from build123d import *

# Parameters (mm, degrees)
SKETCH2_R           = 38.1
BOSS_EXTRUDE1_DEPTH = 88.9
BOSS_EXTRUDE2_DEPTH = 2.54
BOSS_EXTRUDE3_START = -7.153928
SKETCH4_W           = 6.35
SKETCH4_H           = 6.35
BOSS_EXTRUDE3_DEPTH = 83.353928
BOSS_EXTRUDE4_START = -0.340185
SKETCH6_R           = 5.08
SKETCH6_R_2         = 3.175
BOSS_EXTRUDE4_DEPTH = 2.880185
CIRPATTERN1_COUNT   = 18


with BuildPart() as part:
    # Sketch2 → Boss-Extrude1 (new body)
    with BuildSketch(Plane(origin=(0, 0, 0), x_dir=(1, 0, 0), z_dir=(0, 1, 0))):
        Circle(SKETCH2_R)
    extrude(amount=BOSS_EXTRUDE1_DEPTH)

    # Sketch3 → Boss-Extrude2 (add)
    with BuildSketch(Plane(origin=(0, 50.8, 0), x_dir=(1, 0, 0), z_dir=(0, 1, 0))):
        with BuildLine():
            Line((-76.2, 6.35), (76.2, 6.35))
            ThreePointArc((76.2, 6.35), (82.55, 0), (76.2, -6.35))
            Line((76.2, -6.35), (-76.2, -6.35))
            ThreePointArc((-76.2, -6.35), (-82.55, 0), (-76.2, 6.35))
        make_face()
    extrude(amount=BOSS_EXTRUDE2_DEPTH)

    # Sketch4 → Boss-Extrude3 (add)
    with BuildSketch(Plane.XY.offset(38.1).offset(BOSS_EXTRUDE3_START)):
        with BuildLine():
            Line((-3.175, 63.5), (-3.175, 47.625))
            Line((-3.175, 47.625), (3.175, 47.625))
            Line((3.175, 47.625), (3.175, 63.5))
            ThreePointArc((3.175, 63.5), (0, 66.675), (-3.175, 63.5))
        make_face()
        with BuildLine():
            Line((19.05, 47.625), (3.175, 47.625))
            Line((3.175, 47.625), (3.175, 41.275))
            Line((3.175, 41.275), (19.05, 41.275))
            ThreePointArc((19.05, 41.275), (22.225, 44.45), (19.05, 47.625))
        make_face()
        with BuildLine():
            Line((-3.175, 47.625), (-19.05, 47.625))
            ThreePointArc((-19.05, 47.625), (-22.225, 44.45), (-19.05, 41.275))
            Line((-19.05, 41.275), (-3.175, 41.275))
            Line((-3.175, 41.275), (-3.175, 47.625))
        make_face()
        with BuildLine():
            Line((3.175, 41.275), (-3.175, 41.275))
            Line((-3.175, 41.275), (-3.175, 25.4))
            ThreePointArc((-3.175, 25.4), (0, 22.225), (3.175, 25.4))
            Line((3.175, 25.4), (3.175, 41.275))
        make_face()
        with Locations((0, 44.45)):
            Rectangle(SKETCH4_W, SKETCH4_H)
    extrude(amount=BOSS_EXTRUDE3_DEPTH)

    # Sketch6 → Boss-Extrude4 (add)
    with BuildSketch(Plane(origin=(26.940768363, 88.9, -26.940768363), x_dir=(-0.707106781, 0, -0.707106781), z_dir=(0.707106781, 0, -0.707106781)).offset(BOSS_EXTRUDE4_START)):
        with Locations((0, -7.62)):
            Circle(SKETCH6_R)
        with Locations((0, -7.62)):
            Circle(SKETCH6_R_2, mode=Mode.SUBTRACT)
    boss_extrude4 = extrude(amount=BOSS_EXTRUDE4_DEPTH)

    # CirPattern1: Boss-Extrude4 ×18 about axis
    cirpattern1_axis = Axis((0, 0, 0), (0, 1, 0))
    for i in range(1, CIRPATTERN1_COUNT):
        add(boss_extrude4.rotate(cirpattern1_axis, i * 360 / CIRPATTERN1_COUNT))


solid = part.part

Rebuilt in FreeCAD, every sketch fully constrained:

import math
import FreeCAD as App
import Part
import Sketcher
from FreeCAD import Vector
Q = App.Units.Quantity

doc = App.newDocument("Part")
body = doc.addObject("PartDesign::Body", "Body")

# Sketch on XZ plane
sketch1 = body.newObject("Sketcher::SketchObject", "Sketch")
sketch1.AttachmentSupport = (doc.getObject("XZ_Plane"), [""])
sketch1.MapMode = "FlatFace"
sketch1.addGeometry(Part.Circle(Vector(0, 0, 0), Vector(0, 0, 1), 38.1), False)
sketch1.addConstraint([
    Sketcher.Constraint("Coincident", 0, 3, -1, 1),
    Sketcher.Constraint("Diameter", 0, Q("3 in")),
])
pad1 = body.newObject("PartDesign::Pad", "Pad")
pad1.Profile = sketch1
pad1.Length = Q("3.5 in")
pad1.Reversed = True

# Sketch on XZ plane
sketch2 = body.newObject("Sketcher::SketchObject", "Sketch001")
sketch2.AttachmentSupport = (doc.getObject("XZ_Plane"), [""])
sketch2.MapMode = "FlatFace"
sketch2.AttachmentOffset = App.Placement(Vector(0, 0, -2 * 25.4), App.Rotation())
sketch2.addGeometry([
    Part.LineSegment(Vector(76.2, -6.35, 0), Vector(-76.2, -6.35, 0)),
    Part.ArcOfCircle(Part.Circle(Vector(-76.2, 0, 0), Vector(0, 0, 1), 6.35), math.radians(90), math.radians(270)),
    Part.LineSegment(Vector(-76.2, 6.35, 0), Vector(76.2, 6.35, 0)),
    Part.ArcOfCircle(Part.Circle(Vector(76.2, 0, 0), Vector(0, 0, 1), 6.35), math.radians(-90), math.radians(90)),
], False)
sketch2.addConstraint([
    Sketcher.Constraint("Tangent", 0, 2, 1, 2),
    Sketcher.Constraint("Tangent", 1, 1, 2, 1),
    Sketcher.Constraint("Tangent", 2, 2, 3, 2),
    Sketcher.Constraint("Tangent", 3, 1, 0, 1),
    Sketcher.Constraint("Horizontal", 0),
    Sketcher.Constraint("Horizontal", 2),
    Sketcher.Constraint("Symmetric", 1, 3, 3, 3, -1, 1),
    Sketcher.Constraint("DistanceX", 0, 2, 0, 1, Q("6 in")),
    Sketcher.Constraint("Radius", 1, Q("0.25 in")),
])
pad2 = body.newObject("PartDesign::Pad", "Pad001")
pad2.Profile = sketch2
pad2.Length = Q("0.1 in")
pad2.Reversed = True

# Sketch on XY plane
sketch3 = body.newObject("Sketcher::SketchObject", "Sketch002")
sketch3.AttachmentSupport = (doc.getObject("XY_Plane"), [""])
sketch3.MapMode = "FlatFace"
sketch3.AttachmentOffset = App.Placement(Vector(0, 0, 30.946072), App.Rotation())
sketch3.addGeometry([
    Part.LineSegment(Vector(-3.175, 63.5, 0), Vector(-3.175, 47.625, 0)),  # 0
    Part.LineSegment(Vector(-3.175, 47.625, 0), Vector(-19.05, 47.625, 0)),  # 1
    Part.ArcOfCircle(Part.Circle(Vector(-19.05, 44.45, 0), Vector(0, 0, 1), 3.175), math.radians(90), math.radians(270)),  # 2
    Part.LineSegment(Vector(-19.05, 41.275, 0), Vector(-3.175, 41.275, 0)),  # 3
    Part.LineSegment(Vector(-3.175, 41.275, 0), Vector(-3.175, 25.4, 0)),  # 4
    Part.ArcOfCircle(Part.Circle(Vector(0, 25.4, 0), Vector(0, 0, 1), 3.175), math.radians(180), math.radians(360)),  # 5
    Part.LineSegment(Vector(3.175, 25.4, 0), Vector(3.175, 41.275, 0)),  # 6
    Part.LineSegment(Vector(3.175, 41.275, 0), Vector(19.05, 41.275, 0)),  # 7
    Part.ArcOfCircle(Part.Circle(Vector(19.05, 44.45, 0), Vector(0, 0, 1), 3.175), math.radians(-90), math.radians(90)),  # 8
    Part.LineSegment(Vector(19.05, 47.625, 0), Vector(3.175, 47.625, 0)),  # 9
    Part.LineSegment(Vector(3.175, 47.625, 0), Vector(3.175, 63.5, 0)),  # 10
    Part.ArcOfCircle(Part.Circle(Vector(0, 63.5, 0), Vector(0, 0, 1), 3.175), math.radians(0), math.radians(180)),  # 11
], False)
sketch3.addConstraint([
    Sketcher.Constraint("Coincident", 0, 2, 1, 1),
    Sketcher.Constraint("Tangent", 1, 2, 2, 1),
    Sketcher.Constraint("Tangent", 2, 2, 3, 1),
    Sketcher.Constraint("Coincident", 3, 2, 4, 1),
    Sketcher.Constraint("Tangent", 4, 2, 5, 1),
    Sketcher.Constraint("Tangent", 5, 2, 6, 1),
    Sketcher.Constraint("Coincident", 6, 2, 7, 1),
    Sketcher.Constraint("Tangent", 7, 2, 8, 1),
    Sketcher.Constraint("Tangent", 8, 2, 9, 1),
    Sketcher.Constraint("Coincident", 9, 2, 10, 1),
    Sketcher.Constraint("Tangent", 10, 2, 11, 1),
    Sketcher.Constraint("Tangent", 11, 2, 0, 1),
    Sketcher.Constraint("Vertical", 0),
    Sketcher.Constraint("Horizontal", 1),
    Sketcher.Constraint("Horizontal", 3),
    Sketcher.Constraint("Vertical", 4),
    Sketcher.Constraint("Vertical", 6),
    Sketcher.Constraint("Horizontal", 7),
    Sketcher.Constraint("Horizontal", 9),
    Sketcher.Constraint("Vertical", 10),
    Sketcher.Constraint("Equal", 2, 5),
    Sketcher.Constraint("Equal", 5, 8),
    Sketcher.Constraint("Equal", 8, 11),
    Sketcher.Constraint("Symmetric", 2, 3, 8, 3, -2),
    Sketcher.Constraint("PointOnObject", 5, 3, -2),
    Sketcher.Constraint("PointOnObject", 11, 3, -2),
    Sketcher.Constraint("Equal", 9, 0),
    Sketcher.Constraint("Equal", 0, 4),
    Sketcher.Constraint("DistanceY", -1, 1, 5, 3, Q("1 in")),
    Sketcher.Constraint("Radius", 2, Q("0.125 in")),
    Sketcher.Constraint("DistanceY", -1, 1, 11, 3, Q("2.5 in")),
])
pad3 = body.newObject("PartDesign::Pad", "Pad002")
pad3.Profile = sketch3
pad3.Length = 83.353928

# Sketch on an angled plane
sketch4 = body.newObject("Sketcher::SketchObject", "Sketch003")
sketch4.Placement = App.Placement(Vector(26.700221, 88.9, -26.700221), App.Rotation(Vector(-0.707106781, 0, -0.707106781), Vector(0, 0.999999999, 0), Vector(0.707106781, 0, -0.707106781), "ZXY"))
sketch4.addGeometry([
    Part.Circle(Vector(0, -7.62, 0), Vector(0, 0, 1), 5.08),
    Part.Circle(Vector(0, -7.62, 0), Vector(0, 0, 1), 3.175),
], False)
sketch4.addConstraint([
    Sketcher.Constraint("Coincident", 1, 3, 0, 3),
    Sketcher.Constraint("PointOnObject", 0, 3, -2),
    Sketcher.Constraint("Diameter", 0, Q("0.4 in")),
    Sketcher.Constraint("Diameter", 1, Q("0.25 in")),
    Sketcher.Constraint("DistanceY", 0, 3, -1, 1, Q("0.3 in")),
])
pad4 = body.newObject("PartDesign::Pad", "Pad003")
pad4.Profile = sketch4
pad4.Length = 2.880185
doc.recompute()

polarpattern = body.newObject("PartDesign::PolarPattern", "PolarPattern")
polarpattern.Originals = [pad4]
polarpattern.Axis = (doc.getObject("Y_Axis"), [""])
polarpattern.Angle = 360
polarpattern.Occurrences = 18
body.Tip = polarpattern

doc.recompute()
